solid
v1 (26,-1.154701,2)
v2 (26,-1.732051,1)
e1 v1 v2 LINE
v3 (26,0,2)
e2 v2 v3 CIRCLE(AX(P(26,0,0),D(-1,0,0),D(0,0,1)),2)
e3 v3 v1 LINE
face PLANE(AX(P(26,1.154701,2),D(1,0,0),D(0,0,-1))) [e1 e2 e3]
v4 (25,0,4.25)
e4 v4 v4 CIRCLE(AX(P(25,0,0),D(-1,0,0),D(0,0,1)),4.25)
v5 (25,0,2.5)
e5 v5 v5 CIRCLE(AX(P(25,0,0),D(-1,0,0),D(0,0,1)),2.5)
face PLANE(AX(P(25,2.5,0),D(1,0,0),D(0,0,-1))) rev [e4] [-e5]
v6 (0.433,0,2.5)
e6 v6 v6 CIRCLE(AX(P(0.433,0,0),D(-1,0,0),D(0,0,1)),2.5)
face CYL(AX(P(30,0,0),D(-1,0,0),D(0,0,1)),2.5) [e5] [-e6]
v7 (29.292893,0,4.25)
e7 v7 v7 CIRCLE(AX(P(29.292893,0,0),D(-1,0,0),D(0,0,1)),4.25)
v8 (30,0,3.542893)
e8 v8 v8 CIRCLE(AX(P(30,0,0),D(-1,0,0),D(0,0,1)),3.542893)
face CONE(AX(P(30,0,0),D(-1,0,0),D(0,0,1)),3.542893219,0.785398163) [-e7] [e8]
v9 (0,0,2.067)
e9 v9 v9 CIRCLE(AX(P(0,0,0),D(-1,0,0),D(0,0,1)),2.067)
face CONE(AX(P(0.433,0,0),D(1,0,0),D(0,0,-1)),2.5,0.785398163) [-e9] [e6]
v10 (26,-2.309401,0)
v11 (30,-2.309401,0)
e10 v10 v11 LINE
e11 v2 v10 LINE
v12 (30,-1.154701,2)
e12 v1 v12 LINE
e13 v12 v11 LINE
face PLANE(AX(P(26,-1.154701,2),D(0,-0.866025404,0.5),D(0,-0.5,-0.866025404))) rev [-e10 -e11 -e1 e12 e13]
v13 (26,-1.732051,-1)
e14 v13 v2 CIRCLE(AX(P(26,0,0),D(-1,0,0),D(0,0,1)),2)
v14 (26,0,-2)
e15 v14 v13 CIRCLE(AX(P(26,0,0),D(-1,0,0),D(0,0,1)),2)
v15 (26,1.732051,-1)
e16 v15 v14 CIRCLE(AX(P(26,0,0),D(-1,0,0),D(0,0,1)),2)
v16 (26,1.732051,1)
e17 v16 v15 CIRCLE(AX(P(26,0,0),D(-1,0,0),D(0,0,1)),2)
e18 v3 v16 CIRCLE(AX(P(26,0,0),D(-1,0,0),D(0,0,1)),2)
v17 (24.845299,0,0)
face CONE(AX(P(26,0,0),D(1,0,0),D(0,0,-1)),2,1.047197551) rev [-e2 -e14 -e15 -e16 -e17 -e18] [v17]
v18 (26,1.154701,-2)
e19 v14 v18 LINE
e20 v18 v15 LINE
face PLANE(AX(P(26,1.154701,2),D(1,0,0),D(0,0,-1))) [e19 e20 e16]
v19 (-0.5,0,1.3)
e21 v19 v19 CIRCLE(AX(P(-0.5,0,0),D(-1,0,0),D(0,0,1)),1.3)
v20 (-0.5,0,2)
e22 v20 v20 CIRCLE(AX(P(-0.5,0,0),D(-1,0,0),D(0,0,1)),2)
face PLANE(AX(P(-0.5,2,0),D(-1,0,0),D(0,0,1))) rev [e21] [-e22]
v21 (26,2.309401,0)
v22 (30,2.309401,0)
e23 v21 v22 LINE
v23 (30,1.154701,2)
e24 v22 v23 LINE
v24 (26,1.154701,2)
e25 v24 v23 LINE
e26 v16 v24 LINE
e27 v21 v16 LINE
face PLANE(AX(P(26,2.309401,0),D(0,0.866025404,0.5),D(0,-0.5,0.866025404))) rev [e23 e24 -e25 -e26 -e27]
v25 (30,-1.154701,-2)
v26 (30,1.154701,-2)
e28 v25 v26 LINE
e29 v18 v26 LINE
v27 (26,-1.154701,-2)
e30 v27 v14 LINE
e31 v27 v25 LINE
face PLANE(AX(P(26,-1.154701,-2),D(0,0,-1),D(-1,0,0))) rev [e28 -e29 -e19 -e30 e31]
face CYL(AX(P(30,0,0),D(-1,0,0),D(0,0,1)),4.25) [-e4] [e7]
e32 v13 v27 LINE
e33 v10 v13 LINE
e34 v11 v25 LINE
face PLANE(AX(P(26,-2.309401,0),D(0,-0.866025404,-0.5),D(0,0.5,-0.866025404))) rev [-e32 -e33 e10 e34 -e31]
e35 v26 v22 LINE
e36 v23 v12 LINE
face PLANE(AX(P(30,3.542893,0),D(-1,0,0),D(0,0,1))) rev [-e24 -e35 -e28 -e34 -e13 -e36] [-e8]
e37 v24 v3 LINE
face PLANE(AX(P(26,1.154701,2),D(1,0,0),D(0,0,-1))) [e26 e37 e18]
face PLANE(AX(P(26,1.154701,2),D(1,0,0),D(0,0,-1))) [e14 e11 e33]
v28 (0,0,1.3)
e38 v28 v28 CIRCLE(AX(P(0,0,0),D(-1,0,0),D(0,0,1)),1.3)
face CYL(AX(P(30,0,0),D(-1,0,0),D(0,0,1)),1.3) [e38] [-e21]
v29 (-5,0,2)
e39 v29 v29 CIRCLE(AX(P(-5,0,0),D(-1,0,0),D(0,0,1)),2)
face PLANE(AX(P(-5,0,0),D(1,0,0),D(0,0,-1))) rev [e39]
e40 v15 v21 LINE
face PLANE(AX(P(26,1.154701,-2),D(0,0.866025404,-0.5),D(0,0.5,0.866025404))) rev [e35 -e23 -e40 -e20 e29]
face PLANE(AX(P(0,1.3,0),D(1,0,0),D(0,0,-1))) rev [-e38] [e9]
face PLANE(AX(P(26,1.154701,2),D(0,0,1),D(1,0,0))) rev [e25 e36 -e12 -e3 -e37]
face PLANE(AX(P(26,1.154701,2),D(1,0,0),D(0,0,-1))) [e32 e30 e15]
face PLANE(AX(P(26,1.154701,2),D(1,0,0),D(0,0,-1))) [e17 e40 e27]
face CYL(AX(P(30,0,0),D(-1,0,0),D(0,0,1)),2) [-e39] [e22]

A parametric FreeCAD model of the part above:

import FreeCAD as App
import Part
import Sketcher

V = App.Vector
Q = App.Units.Quantity

doc = App.newDocument("Part")
body = doc.addObject("PartDesign::Body", "Body")

# Sketch on XY plane
sketch1 = doc.addObject("Sketcher::SketchObject", "Sketch")
body.addObject(sketch1)
sketch1.AttachmentSupport = (doc.XY_Plane, [""])
sketch1.MapMode = "FlatFace"
sketch1.addGeometry(Part.LineSegment(V(-5, 2, 0), V(-5, 0, 0)), False)
sketch1.addGeometry(Part.LineSegment(V(-5, 0, 0), V(30, 0, 0)), False)
sketch1.addGeometry(Part.LineSegment(V(30, 0, 0), V(30, 3.5, 0)), False)
sketch1.addGeometry(Part.LineSegment(V(30, 3.5, 0), V(29.3, 4.2, 0)), False)
sketch1.addGeometry(Part.LineSegment(V(29.3, 4.2, 0), V(25, 4.2, 0)), False)
sketch1.addGeometry(Part.LineSegment(V(25, 4.2, 0), V(25, 2.5, 0)), False)
sketch1.addGeometry(Part.LineSegment(V(25, 2.5, 0), V(0.4, 2.5, 0)), False)
sketch1.addGeometry(Part.LineSegment(V(0.4, 2.5, 0), V(0, 2.1, 0)), False)
sketch1.addGeometry(Part.LineSegment(V(0, 2.1, 0), V(0, 1.3, 0)), False)
sketch1.addGeometry(Part.LineSegment(V(0, 1.3, 0), V(-0.5, 1.3, 0)), False)
sketch1.addGeometry(Part.LineSegment(V(-0.5, 1.3, 0), V(-0.5, 2, 0)), False)
sketch1.addGeometry(Part.LineSegment(V(-0.5, 2, 0), V(-5, 2, 0)), False)
sketch1.addConstraint(Sketcher.Constraint("Coincident", 0, 2, 1, 1))
sketch1.addConstraint(Sketcher.Constraint("Coincident", 1, 2, 2, 1))
sketch1.addConstraint(Sketcher.Constraint("Coincident", 2, 2, 3, 1))
sketch1.addConstraint(Sketcher.Constraint("Coincident", 3, 2, 4, 1))
sketch1.addConstraint(Sketcher.Constraint("Coincident", 4, 2, 5, 1))
sketch1.addConstraint(Sketcher.Constraint("Coincident", 5, 2, 6, 1))
sketch1.addConstraint(Sketcher.Constraint("Coincident", 6, 2, 7, 1))
sketch1.addConstraint(Sketcher.Constraint("Coincident", 7, 2, 8, 1))
sketch1.addConstraint(Sketcher.Constraint("Coincident", 8, 2, 9, 1))
sketch1.addConstraint(Sketcher.Constraint("Coincident", 9, 2, 10, 1))
sketch1.addConstraint(Sketcher.Constraint("Coincident", 10, 2, 11, 1))
sketch1.addConstraint(Sketcher.Constraint("Coincident", 11, 2, 0, 1))
sketch1.addConstraint(Sketcher.Constraint("Vertical", 0))
sketch1.addConstraint(Sketcher.Constraint("Horizontal", 1))
sketch1.addConstraint(Sketcher.Constraint("Vertical", 2))
sketch1.addConstraint(Sketcher.Constraint("Horizontal", 4))
sketch1.addConstraint(Sketcher.Constraint("Vertical", 5))
sketch1.addConstraint(Sketcher.Constraint("Horizontal", 6))
sketch1.addConstraint(Sketcher.Constraint("Vertical", 8))
sketch1.addConstraint(Sketcher.Constraint("Horizontal", 9))
sketch1.addConstraint(Sketcher.Constraint("Vertical", 10))
sketch1.addConstraint(Sketcher.Constraint("Horizontal", 11))
sketch1.addConstraint(Sketcher.Constraint("PointOnObject", 0, 2, -1))
sketch1.addConstraint(Sketcher.Constraint("PointOnObject", 7, 2, -2))
sketch1.addConstraint(Sketcher.Constraint("Perpendicular", 3, 7))
sketch1.addConstraint(Sketcher.Constraint("DistanceX", 1, 1, 1, 2, Q("35 mm")))
sketch1.addConstraint(Sketcher.Constraint("DistanceY", 0, 2, 0, 1, Q("2 mm")))
sketch1.addConstraint(Sketcher.Constraint("Angle", 3, Q("135 deg")))
sketch1.addConstraint(Sketcher.Constraint("Distance", 3, Q("1 mm")))
sketch1.addConstraint(Sketcher.Constraint("DistanceX", 9, 2, 9, 1, Q("0.5 mm")))
sketch1.addConstraint(Sketcher.Constraint("DistanceX", 11, 2, 11, 1, Q("4.5 mm")))
sketch1.addConstraint(Sketcher.Constraint("DistanceY", 10, 1, 10, 2, Q("0.7 mm")))
sketch1.addConstraint(Sketcher.Constraint("DistanceX", -1, 1, 4, 2, Q("25 mm")))
sketch1.addConstraint(Sketcher.Constraint("DistanceY", 5, 2, 5, 1, Q("1.75 mm")))
sketch1.addConstraint(Sketcher.Constraint("DistanceY", -1, 1, 5, 2, Q("2.5 mm")))
sketch1.addConstraint(Sketcher.Constraint("DistanceX", 6, 2, 6, 1, Q("24.567 mm")))
revolution = doc.addObject("PartDesign::Revolution", "Revolution")
body.addObject(revolution)
revolution.Profile = sketch1
revolution.ReferenceAxis = (sketch1, ["H_Axis"])
revolution.Angle = 360

# Sketch on XY plane
sketch2 = doc.addObject("Sketcher::SketchObject", "Sketch001")
body.addObject(sketch2)
sketch2.AttachmentSupport = (doc.XY_Plane, [""])
sketch2.MapMode = "FlatFace"
sketch2.addGeometry(Part.LineSegment(V(26, 2, 0), V(24.8, 0, 0)), False)
sketch2.addGeometry(Part.LineSegment(V(24.8, 0, 0), V(30, 0, 0)), False)
sketch2.addGeometry(Part.LineSegment(V(30, 0, 0), V(30, 2, 0)), False)
sketch2.addGeometry(Part.LineSegment(V(30, 2, 0), V(26, 2, 0)), False)
sketch2.addConstraint(Sketcher.Constraint("Coincident", 0, 2, 1, 1))
sketch2.addConstraint(Sketcher.Constraint("Coincident", 1, 2, 2, 1))
sketch2.addConstraint(Sketcher.Constraint("Coincident", 2, 2, 3, 1))
sketch2.addConstraint(Sketcher.Constraint("Coincident", 3, 2, 0, 1))
sketch2.addConstraint(Sketcher.Constraint("Horizontal", 1))
sketch2.addConstraint(Sketcher.Constraint("Vertical", 2))
sketch2.addConstraint(Sketcher.Constraint("Horizontal", 3))
sketch2.addConstraint(Sketcher.Constraint("PointOnObject", 0, 2, -1))
sketch2.addConstraint(Sketcher.Constraint("DistanceX", 3, 2, 3, 1, Q("4 mm")))
sketch2.addConstraint(Sketcher.Constraint("DistanceY", 2, 1, 2, 2, Q("2 mm")))
sketch2.addConstraint(Sketcher.Constraint("Angle", 0, Q("-120 deg")))
sketch2.addConstraint(Sketcher.Constraint("DistanceX", -1, 1, 1, 2, Q("30 mm")))
groove = doc.addObject("PartDesign::Groove", "Groove")
body.addObject(groove)
groove.Profile = sketch2
groove.ReferenceAxis = (sketch2, ["H_Axis"])
groove.Angle = 360

# Sketch on YZ plane
sketch3 = doc.addObject("Sketcher::SketchObject", "Sketch002")
body.addObject(sketch3)
sketch3.AttachmentSupport = (doc.YZ_Plane, [""])
sketch3.MapMode = "FlatFace"
sketch3.AttachmentOffset = App.Placement(V(0, 0, 30), App.Rotation())
sketch3.addGeometry(Part.LineSegment(V(1.2, 2, 0), V(-1.2, 2, 0)), False)
sketch3.addGeometry(Part.LineSegment(V(-1.2, 2, 0), V(-2.3, 0, 0)), False)
sketch3.addGeometry(Part.LineSegment(V(-2.3, 0, 0), V(-1.2, -2, 0)), False)
sketch3.addGeometry(Part.LineSegment(V(-1.2, -2, 0), V(1.2, -2, 0)), False)
sketch3.addGeometry(Part.LineSegment(V(1.2, -2, 0), V(2.3, 0, 0)), False)
sketch3.addGeometry(Part.LineSegment(V(2.3, 0, 0), V(1.2, 2, 0)), False)
sketch3.addConstraint(Sketcher.Constraint("Coincident", 0, 2, 1, 1))
sketch3.addConstraint(Sketcher.Constraint("Coincident", 1, 2, 2, 1))
sketch3.addConstraint(Sketcher.Constraint("Coincident", 2, 2, 3, 1))
sketch3.addConstraint(Sketcher.Constraint("Coincident", 3, 2, 4, 1))
sketch3.addConstraint(Sketcher.Constraint("Coincident", 4, 2, 5, 1))
sketch3.addConstraint(Sketcher.Constraint("Coincident", 5, 2, 0, 1))
sketch3.addConstraint(Sketcher.Constraint("Horizontal", 0))
sketch3.addConstraint(Sketcher.Constraint("Horizontal", 3))
sketch3.addConstraint(Sketcher.Constraint("Symmetric", 0, 2, 3, 2, -1, 1))
sketch3.addConstraint(Sketcher.Constraint("Symmetric", 1, 2, 4, 2, -1, 1))
sketch3.addConstraint(Sketcher.Constraint("PointOnObject", 1, 2, -1))
sketch3.addConstraint(Sketcher.Constraint("Parallel", 2, 5))
sketch3.addConstraint(Sketcher.Constraint("Vertical", 0, 2, 2, 2))
sketch3.addConstraint(Sketcher.Constraint("Angle", 1, Q("-120 deg")))
sketch3.addConstraint(Sketcher.Constraint("DistanceY", -1, 1, 0, 2, Q("2 mm")))
sketch3.addConstraint(Sketcher.Constraint("DistanceX", 0, 2, 0, 1, Q("2.309401 mm")))
pocket1 = doc.addObject("PartDesign::Pocket", "Pocket")
body.addObject(pocket1)
pocket1.Profile = sketch3
pocket1.Length = 4

doc.recompute()
